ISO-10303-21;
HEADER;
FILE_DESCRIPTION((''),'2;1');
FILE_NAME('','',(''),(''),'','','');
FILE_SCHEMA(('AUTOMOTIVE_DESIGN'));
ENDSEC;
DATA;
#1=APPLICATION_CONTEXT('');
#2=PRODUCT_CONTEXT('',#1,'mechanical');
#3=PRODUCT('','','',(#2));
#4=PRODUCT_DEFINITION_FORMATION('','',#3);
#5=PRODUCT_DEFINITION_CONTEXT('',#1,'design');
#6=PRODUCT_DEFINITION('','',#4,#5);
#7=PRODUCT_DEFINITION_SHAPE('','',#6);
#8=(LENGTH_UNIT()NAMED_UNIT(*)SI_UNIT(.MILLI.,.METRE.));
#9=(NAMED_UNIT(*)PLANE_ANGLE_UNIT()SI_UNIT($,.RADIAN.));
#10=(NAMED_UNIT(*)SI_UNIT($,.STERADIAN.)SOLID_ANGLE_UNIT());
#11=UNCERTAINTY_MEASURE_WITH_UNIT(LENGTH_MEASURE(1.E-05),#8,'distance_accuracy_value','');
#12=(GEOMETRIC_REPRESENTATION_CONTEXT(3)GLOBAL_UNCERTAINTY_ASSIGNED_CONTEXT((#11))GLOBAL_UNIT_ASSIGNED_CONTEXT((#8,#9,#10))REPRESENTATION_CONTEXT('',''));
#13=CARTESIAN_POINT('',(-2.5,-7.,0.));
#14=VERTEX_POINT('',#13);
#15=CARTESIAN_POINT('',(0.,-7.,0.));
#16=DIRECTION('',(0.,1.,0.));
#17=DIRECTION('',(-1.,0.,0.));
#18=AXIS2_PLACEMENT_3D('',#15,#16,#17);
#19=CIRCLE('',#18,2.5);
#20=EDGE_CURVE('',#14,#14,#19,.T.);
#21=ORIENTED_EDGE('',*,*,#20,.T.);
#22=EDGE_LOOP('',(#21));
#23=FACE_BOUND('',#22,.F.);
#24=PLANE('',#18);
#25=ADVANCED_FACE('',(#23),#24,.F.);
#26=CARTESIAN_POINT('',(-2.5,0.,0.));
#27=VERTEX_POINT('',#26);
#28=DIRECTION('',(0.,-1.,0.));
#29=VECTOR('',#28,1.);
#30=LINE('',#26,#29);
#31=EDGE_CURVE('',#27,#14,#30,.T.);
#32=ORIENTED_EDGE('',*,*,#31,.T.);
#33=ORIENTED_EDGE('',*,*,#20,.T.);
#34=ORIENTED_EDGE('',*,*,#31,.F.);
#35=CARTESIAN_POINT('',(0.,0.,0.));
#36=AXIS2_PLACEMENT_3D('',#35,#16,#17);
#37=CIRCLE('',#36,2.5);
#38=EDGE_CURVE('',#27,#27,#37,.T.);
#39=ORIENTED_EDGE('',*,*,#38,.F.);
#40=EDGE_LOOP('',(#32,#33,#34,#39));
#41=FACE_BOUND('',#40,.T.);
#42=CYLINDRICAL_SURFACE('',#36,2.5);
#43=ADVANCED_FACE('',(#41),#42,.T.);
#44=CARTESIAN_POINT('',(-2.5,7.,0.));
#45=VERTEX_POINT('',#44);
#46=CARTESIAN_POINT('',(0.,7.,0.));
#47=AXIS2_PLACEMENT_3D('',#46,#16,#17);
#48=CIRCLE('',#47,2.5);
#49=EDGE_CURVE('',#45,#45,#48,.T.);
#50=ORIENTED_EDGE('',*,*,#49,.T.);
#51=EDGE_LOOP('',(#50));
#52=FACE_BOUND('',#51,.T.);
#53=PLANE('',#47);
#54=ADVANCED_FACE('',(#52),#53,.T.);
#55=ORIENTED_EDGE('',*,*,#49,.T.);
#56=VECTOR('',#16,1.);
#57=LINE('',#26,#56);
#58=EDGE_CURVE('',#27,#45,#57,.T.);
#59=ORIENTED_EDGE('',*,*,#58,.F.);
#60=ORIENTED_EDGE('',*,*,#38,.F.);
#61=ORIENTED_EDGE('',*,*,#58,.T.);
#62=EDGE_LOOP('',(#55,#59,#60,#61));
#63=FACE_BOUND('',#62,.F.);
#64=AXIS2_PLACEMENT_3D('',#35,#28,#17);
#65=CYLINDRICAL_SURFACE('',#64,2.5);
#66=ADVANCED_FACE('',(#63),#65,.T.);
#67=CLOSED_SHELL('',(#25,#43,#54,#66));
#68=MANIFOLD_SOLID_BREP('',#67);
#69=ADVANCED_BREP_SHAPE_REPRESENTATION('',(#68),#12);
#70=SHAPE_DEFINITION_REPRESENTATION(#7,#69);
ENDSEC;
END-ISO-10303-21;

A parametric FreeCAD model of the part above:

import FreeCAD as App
import Part
import Sketcher
from FreeCAD import Vector

doc = App.newDocument("Part")
body = doc.addObject("PartDesign::Body", "Body")

sketch1 = doc.addObject("Sketcher::SketchObject", "Sketch")
body.addObject(sketch1)
sketch1.AttachmentSupport = (doc.XZ_Plane, [""])
sketch1.MapMode = "FlatFace"
sketch1.addGeometry(Part.Circle(Vector(0, 0, 0), Vector(0, 0, 1), 2.5), False)
sketch1.addConstraint([
    Sketcher.Constraint("Coincident", 0, 3, -1, 1),
    Sketcher.Constraint("Diameter", 0, 5.0),
])
pad1 = doc.addObject("PartDesign::Pad", "Pad")
body.addObject(pad1)
pad1.Profile = sketch1
pad1.Length = 14
pad1.Midplane = True

doc.recompute()
